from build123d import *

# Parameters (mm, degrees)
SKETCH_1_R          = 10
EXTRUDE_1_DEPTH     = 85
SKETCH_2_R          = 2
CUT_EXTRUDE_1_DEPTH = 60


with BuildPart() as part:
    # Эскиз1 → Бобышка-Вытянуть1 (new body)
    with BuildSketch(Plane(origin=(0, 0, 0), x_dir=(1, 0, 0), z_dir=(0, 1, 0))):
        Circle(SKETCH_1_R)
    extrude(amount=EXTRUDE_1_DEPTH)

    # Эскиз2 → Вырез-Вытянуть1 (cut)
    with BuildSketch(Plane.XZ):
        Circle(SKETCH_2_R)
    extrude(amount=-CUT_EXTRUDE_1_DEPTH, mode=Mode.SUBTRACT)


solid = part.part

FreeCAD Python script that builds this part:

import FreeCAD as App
import Part
import Sketcher

V = App.Vector

doc = App.newDocument("Part")
body = doc.addObject("PartDesign::Body", "Body")

# Sketch on XZ plane
sketch1 = body.newObject("Sketcher::SketchObject", "Sketch")
sketch1.AttachmentSupport = (doc.getObject("XZ_Plane"), [""])
sketch1.MapMode = "FlatFace"
sketch1.addGeometry(Part.Circle(V(0, 0, 0), V(0, 0, 1), 10), False)
sketch1.addConstraint(Sketcher.Constraint("Coincident", 0, 3, -1, 1))
sketch1.addConstraint(Sketcher.Constraint("Diameter", 0, 20.0))
pad1 = body.newObject("PartDesign::Pad", "Pad")
pad1.Profile = sketch1
pad1.Length = 85
pad1.Reversed = True

# Sketch on XZ plane
sketch2 = body.newObject("Sketcher::SketchObject", "Sketch001")
sketch2.AttachmentSupport = (doc.getObject("XZ_Plane"), [""])
sketch2.MapMode = "FlatFace"
sketch2.addGeometry(Part.Circle(V(0, 0, 0), V(0, 0, 1), 2), False)
sketch2.addConstraint(Sketcher.Constraint("Coincident", 0, 3, -1, 1))
sketch2.addConstraint(Sketcher.Constraint("Diameter", 0, 4.0))
pocket1 = body.newObject("PartDesign::Pocket", "Pocket")
pocket1.Profile = sketch2
pocket1.Length = 60

doc.recompute()
